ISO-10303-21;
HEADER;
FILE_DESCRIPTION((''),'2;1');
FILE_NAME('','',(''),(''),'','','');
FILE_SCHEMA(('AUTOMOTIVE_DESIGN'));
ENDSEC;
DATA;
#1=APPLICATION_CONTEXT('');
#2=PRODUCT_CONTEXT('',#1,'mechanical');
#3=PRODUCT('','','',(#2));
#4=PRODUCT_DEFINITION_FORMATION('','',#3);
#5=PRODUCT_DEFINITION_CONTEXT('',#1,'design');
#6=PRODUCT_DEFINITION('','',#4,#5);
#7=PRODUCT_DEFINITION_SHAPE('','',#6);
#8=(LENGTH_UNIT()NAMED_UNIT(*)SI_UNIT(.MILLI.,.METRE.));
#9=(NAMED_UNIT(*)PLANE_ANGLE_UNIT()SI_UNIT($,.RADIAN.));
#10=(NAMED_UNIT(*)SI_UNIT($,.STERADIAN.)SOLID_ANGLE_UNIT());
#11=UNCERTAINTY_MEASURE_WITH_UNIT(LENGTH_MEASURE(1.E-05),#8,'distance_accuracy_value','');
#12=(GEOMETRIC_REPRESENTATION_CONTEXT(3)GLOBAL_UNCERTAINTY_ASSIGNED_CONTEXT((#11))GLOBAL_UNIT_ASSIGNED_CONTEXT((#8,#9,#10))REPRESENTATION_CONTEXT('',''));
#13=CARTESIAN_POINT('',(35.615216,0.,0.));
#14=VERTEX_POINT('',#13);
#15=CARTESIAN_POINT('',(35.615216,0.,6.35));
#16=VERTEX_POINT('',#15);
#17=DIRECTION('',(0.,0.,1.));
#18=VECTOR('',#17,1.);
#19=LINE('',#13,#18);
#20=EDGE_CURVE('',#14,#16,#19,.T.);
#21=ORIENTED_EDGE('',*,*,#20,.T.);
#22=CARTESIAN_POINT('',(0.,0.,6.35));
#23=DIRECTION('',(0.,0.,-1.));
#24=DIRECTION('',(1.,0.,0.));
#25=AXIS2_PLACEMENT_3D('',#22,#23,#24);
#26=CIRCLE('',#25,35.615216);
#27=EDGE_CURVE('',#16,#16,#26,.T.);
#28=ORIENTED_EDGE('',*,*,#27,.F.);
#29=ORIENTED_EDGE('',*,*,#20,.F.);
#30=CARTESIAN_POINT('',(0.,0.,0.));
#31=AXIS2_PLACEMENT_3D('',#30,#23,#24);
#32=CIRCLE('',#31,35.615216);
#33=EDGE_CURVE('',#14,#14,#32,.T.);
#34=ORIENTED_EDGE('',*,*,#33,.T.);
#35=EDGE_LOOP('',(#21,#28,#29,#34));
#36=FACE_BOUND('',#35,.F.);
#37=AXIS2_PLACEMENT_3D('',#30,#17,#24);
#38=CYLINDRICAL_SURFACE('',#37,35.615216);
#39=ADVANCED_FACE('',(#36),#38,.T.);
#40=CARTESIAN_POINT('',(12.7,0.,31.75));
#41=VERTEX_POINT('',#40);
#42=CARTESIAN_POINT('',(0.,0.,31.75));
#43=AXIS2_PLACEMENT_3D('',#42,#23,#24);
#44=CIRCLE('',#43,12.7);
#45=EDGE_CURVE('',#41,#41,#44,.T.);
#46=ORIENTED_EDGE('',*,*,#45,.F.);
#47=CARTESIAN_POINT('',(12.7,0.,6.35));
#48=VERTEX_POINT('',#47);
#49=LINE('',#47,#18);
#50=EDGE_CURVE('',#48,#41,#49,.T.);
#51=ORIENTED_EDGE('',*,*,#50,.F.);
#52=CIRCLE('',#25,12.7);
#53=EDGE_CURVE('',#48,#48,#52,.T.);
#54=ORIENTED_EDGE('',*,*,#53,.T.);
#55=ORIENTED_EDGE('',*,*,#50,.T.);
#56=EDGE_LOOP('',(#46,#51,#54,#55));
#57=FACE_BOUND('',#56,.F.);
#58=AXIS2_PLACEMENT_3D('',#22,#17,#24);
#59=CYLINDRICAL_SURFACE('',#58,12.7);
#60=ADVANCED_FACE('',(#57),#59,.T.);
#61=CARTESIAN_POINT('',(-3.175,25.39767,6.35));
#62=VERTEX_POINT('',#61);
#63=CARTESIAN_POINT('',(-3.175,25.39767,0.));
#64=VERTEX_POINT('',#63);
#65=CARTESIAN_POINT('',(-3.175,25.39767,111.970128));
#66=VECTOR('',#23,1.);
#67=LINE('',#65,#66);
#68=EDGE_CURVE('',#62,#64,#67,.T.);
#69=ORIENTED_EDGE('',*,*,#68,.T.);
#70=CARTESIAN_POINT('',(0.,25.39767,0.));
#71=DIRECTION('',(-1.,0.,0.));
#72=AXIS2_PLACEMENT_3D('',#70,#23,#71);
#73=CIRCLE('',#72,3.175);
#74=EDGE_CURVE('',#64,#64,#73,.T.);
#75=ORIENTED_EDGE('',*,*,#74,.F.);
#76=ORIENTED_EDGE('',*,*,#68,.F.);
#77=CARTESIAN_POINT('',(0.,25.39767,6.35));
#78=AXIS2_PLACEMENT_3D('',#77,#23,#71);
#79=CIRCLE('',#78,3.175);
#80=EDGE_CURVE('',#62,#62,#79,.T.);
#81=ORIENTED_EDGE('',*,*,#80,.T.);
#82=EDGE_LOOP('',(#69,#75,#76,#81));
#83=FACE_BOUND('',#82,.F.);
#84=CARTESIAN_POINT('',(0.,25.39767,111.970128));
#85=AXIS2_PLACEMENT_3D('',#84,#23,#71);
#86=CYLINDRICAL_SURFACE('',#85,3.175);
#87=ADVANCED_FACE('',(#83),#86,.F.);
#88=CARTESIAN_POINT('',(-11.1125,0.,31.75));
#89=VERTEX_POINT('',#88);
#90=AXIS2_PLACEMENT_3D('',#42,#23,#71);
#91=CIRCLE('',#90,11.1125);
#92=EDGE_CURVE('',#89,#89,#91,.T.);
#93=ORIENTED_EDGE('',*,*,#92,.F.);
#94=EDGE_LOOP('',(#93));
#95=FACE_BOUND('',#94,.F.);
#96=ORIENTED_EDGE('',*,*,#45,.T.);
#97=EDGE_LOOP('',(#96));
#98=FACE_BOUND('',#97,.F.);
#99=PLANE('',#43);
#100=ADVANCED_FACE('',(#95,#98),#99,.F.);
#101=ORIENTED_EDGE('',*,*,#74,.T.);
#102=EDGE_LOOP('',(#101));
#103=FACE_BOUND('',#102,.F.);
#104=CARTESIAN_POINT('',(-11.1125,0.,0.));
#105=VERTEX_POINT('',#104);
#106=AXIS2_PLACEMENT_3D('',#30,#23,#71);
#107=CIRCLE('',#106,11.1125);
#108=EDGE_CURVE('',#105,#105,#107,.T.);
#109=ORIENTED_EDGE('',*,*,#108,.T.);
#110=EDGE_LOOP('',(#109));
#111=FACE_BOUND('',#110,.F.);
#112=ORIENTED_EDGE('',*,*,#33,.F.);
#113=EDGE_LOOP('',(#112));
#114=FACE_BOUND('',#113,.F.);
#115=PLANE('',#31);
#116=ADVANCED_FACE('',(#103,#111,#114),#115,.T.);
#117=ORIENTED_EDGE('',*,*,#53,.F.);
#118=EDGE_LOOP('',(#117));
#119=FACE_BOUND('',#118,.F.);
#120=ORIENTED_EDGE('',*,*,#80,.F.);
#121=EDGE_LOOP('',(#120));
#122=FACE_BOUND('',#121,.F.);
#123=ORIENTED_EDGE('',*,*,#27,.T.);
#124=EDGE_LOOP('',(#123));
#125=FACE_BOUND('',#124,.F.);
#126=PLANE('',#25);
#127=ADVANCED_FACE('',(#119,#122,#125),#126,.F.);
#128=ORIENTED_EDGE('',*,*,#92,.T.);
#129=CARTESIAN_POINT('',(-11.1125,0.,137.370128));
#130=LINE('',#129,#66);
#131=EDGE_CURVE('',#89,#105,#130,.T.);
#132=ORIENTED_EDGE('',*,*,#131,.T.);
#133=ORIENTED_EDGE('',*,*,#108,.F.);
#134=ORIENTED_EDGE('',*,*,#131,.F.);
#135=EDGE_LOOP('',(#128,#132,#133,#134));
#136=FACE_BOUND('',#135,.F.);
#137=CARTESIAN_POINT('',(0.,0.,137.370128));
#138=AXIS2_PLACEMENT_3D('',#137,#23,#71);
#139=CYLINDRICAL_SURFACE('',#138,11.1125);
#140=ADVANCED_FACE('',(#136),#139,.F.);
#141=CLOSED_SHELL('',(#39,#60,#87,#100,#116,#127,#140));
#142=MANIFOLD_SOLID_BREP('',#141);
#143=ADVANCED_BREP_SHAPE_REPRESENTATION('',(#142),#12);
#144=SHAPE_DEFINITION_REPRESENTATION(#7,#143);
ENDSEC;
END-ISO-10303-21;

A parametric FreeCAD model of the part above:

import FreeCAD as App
import Part
import Sketcher
from FreeCAD import Vector
Q = App.Units.Quantity

doc = App.newDocument("Part")
body = doc.addObject("PartDesign::Body", "Body")

# Sketch on XZ plane
sketch1 = doc.addObject("Sketcher::SketchObject", "Sketch")
body.addObject(sketch1)
sketch1.AttachmentSupport = (doc.XZ_Plane, [""])
sketch1.MapMode = "FlatFace"
sketch1.addGeometry([
    Part.LineSegment(Vector(0, 31.75, 0), Vector(0, 0, 0)),  # 0
    Part.LineSegment(Vector(0, 0, 0), Vector(35.615216, 0, 0)),  # 1
    Part.LineSegment(Vector(35.615216, 0, 0), Vector(35.615216, 6.35, 0)),  # 2
    Part.LineSegment(Vector(35.615216, 6.35, 0), Vector(12.7, 6.35, 0)),  # 3
    Part.LineSegment(Vector(12.7, 6.35, 0), Vector(12.7, 31.75, 0)),  # 4
    Part.LineSegment(Vector(12.7, 31.75, 0), Vector(0, 31.75, 0)),  # 5
], False)
sketch1.addConstraint([
    Sketcher.Constraint("Coincident", 0, 2, 1, 1),
    Sketcher.Constraint("Coincident", 1, 2, 2, 1),
    Sketcher.Constraint("Coincident", 2, 2, 3, 1),
    Sketcher.Constraint("Coincident", 3, 2, 4, 1),
    Sketcher.Constraint("Coincident", 4, 2, 5, 1),
    Sketcher.Constraint("Coincident", 5, 2, 0, 1),
    Sketcher.Constraint("Vertical", 0),
    Sketcher.Constraint("Horizontal", 1),
    Sketcher.Constraint("Vertical", 2),
    Sketcher.Constraint("Horizontal", 3),
    Sketcher.Constraint("Vertical", 4),
    Sketcher.Constraint("Horizontal", 5),
    Sketcher.Constraint("Coincident", 0, 2, -1, 1),
    Sketcher.Constraint("DistanceY", 4, 1, 4, 2, Q("1 in")),
    Sketcher.Constraint("DistanceX", 5, 2, 5, 1, Q("0.5 in")),
    Sketcher.Constraint("DistanceY", 0, 2, 0, 1, Q("1.25 in")),
    Sketcher.Constraint("DistanceX", 1, 1, 1, 2, 35.615216),
])
revolution = doc.addObject("PartDesign::Revolution", "Revolution")
body.addObject(revolution)
revolution.Profile = sketch1
revolution.ReferenceAxis = (sketch1, ["V_Axis"])
revolution.Angle = 360

# Sketch on XY plane
sketch2 = doc.addObject("Sketcher::SketchObject", "Sketch001")
body.addObject(sketch2)
sketch2.AttachmentSupport = (doc.XY_Plane, [""])
sketch2.MapMode = "FlatFace"
sketch2.AttachmentOffset = App.Placement(Vector(0, 0, 1.25 * 25.4), App.Rotation())
sketch2.addGeometry(Part.Circle(Vector(0, 0, 0), Vector(0, 0, 1), 11.1125), False)
sketch2.addConstraint([
    Sketcher.Constraint("Coincident", 0, 3, -1, 1),
    Sketcher.Constraint("Diameter", 0, Q("0.875 in")),
])
doc.recompute()
hole = doc.addObject("PartDesign::Hole", "Hole")
body.addObject(hole)
hole.Profile = sketch2
hole.ThreadType = "None"
hole.Diameter = Q("0.875 in")
hole.DepthType = "ThroughAll"

# Sketch on XY plane
sketch3 = doc.addObject("Sketcher::SketchObject", "Sketch002")
body.addObject(sketch3)
sketch3.AttachmentSupport = (doc.XY_Plane, [""])
sketch3.MapMode = "FlatFace"
sketch3.AttachmentOffset = App.Placement(Vector(0, 0, 0.25 * 25.4), App.Rotation())
sketch3.addGeometry(Part.Circle(Vector(0, 25.39767, 0), Vector(0, 0, 1), 3.175), False)
sketch3.addConstraint([
    Sketcher.Constraint("PointOnObject", 0, 3, -2),
    Sketcher.Constraint("Diameter", 0, Q("0.25 in")),
    Sketcher.Constraint("DistanceY", -1, 1, 0, 3, 25.39767),
])
doc.recompute()
hole2 = doc.addObject("PartDesign::Hole", "Hole001")
body.addObject(hole2)
hole2.Profile = sketch3
hole2.ThreadType = "None"
hole2.Diameter = Q("0.25 in")
hole2.DepthType = "ThroughAll"

doc.recompute()
